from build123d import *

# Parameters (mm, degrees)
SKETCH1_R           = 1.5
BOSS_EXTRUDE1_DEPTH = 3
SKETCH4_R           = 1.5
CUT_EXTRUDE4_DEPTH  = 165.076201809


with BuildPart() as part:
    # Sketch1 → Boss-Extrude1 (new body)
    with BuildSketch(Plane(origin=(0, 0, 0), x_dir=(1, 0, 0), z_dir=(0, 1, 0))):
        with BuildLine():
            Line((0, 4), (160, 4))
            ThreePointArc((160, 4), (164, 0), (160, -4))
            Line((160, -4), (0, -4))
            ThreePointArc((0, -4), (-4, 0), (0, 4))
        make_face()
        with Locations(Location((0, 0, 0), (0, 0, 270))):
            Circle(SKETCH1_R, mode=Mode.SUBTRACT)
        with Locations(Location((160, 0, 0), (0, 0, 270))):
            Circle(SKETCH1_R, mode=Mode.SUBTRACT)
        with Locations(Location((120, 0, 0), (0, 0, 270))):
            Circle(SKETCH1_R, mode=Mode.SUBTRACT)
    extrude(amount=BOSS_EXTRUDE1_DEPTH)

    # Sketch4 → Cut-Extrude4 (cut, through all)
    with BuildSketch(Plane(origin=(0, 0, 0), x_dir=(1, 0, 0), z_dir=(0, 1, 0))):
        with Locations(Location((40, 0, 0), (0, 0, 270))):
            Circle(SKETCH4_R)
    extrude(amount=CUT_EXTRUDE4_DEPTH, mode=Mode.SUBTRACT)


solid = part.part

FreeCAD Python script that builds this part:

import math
import FreeCAD as App
import Part
import Sketcher
from FreeCAD import Vector

doc = App.newDocument("Part")
body = doc.addObject("PartDesign::Body", "Body")

# Sketch on XZ plane
sketch1 = doc.addObject("Sketcher::SketchObject", "Sketch")
body.addObject(sketch1)
sketch1.AttachmentSupport = (doc.XZ_Plane, [""])
sketch1.MapMode = "FlatFace"
sketch1.addGeometry([
    Part.LineSegment(Vector(160, -4, 0), Vector(0, -4, 0)),  # 0
    Part.ArcOfCircle(Part.Circle(Vector(0, 0, 0), Vector(0, 0, 1), 4), math.radians(90), math.radians(270)),  # 1
    Part.LineSegment(Vector(0, 4, 0), Vector(160, 4, 0)),  # 2
    Part.ArcOfCircle(Part.Circle(Vector(160, 0, 0), Vector(0, 0, 1), 4), math.radians(-90), math.radians(90)),  # 3
    Part.Circle(Vector(160, 0, 0), Vector(0, 0, 1), 1.5),  # 4
    Part.Circle(Vector(120, 0, 0), Vector(0, 0, 1), 1.5),  # 5
    Part.Circle(Vector(0, 0, 0), Vector(0, 0, 1), 1.5),  # 6
], False)
sketch1.addConstraint([
    Sketcher.Constraint("Tangent", 0, 2, 1, 2),
    Sketcher.Constraint("Tangent", 1, 1, 2, 1),
    Sketcher.Constraint("Tangent", 2, 2, 3, 2),
    Sketcher.Constraint("Tangent", 3, 1, 0, 1),
    Sketcher.Constraint("Horizontal", 0),
    Sketcher.Constraint("Horizontal", 2),
    Sketcher.Constraint("Coincident", 1, 3, -1, 1),
    Sketcher.Constraint("Coincident", 6, 3, -1, 1),
    Sketcher.Constraint("Coincident", 4, 3, 3, 3),
    Sketcher.Constraint("Equal", 4, 5),
    Sketcher.Constraint("Equal", 5, 6),
    Sketcher.Constraint("PointOnObject", 5, 3, -1),
    Sketcher.Constraint("Diameter", 4, 3.0),
    Sketcher.Constraint("Radius", 1, 4.0),
    Sketcher.Constraint("DistanceX", 0, 2, 0, 1, 160.0),
    Sketcher.Constraint("DistanceX", -1, 1, 5, 3, 120.0),
])
pad1 = doc.addObject("PartDesign::Pad", "Pad")
body.addObject(pad1)
pad1.Profile = sketch1
pad1.Length = 3
pad1.Reversed = True

# Sketch on XZ plane
sketch2 = doc.addObject("Sketcher::SketchObject", "Sketch001")
body.addObject(sketch2)
sketch2.AttachmentSupport = (doc.XZ_Plane, [""])
sketch2.MapMode = "FlatFace"
sketch2.addGeometry(Part.Circle(Vector(40, 0, 0), Vector(0, 0, 1), 1.5), False)
sketch2.addConstraint([
    Sketcher.Constraint("PointOnObject", 0, 3, -1),
    Sketcher.Constraint("Diameter", 0, 3.0),
    Sketcher.Constraint("DistanceX", -1, 1, 0, 3, 40.0),
])
pocket1 = doc.addObject("PartDesign::Pocket", "Pocket")
body.addObject(pocket1)
pocket1.Profile = sketch2
pocket1.Type = "ThroughAll"

doc.recompute()
